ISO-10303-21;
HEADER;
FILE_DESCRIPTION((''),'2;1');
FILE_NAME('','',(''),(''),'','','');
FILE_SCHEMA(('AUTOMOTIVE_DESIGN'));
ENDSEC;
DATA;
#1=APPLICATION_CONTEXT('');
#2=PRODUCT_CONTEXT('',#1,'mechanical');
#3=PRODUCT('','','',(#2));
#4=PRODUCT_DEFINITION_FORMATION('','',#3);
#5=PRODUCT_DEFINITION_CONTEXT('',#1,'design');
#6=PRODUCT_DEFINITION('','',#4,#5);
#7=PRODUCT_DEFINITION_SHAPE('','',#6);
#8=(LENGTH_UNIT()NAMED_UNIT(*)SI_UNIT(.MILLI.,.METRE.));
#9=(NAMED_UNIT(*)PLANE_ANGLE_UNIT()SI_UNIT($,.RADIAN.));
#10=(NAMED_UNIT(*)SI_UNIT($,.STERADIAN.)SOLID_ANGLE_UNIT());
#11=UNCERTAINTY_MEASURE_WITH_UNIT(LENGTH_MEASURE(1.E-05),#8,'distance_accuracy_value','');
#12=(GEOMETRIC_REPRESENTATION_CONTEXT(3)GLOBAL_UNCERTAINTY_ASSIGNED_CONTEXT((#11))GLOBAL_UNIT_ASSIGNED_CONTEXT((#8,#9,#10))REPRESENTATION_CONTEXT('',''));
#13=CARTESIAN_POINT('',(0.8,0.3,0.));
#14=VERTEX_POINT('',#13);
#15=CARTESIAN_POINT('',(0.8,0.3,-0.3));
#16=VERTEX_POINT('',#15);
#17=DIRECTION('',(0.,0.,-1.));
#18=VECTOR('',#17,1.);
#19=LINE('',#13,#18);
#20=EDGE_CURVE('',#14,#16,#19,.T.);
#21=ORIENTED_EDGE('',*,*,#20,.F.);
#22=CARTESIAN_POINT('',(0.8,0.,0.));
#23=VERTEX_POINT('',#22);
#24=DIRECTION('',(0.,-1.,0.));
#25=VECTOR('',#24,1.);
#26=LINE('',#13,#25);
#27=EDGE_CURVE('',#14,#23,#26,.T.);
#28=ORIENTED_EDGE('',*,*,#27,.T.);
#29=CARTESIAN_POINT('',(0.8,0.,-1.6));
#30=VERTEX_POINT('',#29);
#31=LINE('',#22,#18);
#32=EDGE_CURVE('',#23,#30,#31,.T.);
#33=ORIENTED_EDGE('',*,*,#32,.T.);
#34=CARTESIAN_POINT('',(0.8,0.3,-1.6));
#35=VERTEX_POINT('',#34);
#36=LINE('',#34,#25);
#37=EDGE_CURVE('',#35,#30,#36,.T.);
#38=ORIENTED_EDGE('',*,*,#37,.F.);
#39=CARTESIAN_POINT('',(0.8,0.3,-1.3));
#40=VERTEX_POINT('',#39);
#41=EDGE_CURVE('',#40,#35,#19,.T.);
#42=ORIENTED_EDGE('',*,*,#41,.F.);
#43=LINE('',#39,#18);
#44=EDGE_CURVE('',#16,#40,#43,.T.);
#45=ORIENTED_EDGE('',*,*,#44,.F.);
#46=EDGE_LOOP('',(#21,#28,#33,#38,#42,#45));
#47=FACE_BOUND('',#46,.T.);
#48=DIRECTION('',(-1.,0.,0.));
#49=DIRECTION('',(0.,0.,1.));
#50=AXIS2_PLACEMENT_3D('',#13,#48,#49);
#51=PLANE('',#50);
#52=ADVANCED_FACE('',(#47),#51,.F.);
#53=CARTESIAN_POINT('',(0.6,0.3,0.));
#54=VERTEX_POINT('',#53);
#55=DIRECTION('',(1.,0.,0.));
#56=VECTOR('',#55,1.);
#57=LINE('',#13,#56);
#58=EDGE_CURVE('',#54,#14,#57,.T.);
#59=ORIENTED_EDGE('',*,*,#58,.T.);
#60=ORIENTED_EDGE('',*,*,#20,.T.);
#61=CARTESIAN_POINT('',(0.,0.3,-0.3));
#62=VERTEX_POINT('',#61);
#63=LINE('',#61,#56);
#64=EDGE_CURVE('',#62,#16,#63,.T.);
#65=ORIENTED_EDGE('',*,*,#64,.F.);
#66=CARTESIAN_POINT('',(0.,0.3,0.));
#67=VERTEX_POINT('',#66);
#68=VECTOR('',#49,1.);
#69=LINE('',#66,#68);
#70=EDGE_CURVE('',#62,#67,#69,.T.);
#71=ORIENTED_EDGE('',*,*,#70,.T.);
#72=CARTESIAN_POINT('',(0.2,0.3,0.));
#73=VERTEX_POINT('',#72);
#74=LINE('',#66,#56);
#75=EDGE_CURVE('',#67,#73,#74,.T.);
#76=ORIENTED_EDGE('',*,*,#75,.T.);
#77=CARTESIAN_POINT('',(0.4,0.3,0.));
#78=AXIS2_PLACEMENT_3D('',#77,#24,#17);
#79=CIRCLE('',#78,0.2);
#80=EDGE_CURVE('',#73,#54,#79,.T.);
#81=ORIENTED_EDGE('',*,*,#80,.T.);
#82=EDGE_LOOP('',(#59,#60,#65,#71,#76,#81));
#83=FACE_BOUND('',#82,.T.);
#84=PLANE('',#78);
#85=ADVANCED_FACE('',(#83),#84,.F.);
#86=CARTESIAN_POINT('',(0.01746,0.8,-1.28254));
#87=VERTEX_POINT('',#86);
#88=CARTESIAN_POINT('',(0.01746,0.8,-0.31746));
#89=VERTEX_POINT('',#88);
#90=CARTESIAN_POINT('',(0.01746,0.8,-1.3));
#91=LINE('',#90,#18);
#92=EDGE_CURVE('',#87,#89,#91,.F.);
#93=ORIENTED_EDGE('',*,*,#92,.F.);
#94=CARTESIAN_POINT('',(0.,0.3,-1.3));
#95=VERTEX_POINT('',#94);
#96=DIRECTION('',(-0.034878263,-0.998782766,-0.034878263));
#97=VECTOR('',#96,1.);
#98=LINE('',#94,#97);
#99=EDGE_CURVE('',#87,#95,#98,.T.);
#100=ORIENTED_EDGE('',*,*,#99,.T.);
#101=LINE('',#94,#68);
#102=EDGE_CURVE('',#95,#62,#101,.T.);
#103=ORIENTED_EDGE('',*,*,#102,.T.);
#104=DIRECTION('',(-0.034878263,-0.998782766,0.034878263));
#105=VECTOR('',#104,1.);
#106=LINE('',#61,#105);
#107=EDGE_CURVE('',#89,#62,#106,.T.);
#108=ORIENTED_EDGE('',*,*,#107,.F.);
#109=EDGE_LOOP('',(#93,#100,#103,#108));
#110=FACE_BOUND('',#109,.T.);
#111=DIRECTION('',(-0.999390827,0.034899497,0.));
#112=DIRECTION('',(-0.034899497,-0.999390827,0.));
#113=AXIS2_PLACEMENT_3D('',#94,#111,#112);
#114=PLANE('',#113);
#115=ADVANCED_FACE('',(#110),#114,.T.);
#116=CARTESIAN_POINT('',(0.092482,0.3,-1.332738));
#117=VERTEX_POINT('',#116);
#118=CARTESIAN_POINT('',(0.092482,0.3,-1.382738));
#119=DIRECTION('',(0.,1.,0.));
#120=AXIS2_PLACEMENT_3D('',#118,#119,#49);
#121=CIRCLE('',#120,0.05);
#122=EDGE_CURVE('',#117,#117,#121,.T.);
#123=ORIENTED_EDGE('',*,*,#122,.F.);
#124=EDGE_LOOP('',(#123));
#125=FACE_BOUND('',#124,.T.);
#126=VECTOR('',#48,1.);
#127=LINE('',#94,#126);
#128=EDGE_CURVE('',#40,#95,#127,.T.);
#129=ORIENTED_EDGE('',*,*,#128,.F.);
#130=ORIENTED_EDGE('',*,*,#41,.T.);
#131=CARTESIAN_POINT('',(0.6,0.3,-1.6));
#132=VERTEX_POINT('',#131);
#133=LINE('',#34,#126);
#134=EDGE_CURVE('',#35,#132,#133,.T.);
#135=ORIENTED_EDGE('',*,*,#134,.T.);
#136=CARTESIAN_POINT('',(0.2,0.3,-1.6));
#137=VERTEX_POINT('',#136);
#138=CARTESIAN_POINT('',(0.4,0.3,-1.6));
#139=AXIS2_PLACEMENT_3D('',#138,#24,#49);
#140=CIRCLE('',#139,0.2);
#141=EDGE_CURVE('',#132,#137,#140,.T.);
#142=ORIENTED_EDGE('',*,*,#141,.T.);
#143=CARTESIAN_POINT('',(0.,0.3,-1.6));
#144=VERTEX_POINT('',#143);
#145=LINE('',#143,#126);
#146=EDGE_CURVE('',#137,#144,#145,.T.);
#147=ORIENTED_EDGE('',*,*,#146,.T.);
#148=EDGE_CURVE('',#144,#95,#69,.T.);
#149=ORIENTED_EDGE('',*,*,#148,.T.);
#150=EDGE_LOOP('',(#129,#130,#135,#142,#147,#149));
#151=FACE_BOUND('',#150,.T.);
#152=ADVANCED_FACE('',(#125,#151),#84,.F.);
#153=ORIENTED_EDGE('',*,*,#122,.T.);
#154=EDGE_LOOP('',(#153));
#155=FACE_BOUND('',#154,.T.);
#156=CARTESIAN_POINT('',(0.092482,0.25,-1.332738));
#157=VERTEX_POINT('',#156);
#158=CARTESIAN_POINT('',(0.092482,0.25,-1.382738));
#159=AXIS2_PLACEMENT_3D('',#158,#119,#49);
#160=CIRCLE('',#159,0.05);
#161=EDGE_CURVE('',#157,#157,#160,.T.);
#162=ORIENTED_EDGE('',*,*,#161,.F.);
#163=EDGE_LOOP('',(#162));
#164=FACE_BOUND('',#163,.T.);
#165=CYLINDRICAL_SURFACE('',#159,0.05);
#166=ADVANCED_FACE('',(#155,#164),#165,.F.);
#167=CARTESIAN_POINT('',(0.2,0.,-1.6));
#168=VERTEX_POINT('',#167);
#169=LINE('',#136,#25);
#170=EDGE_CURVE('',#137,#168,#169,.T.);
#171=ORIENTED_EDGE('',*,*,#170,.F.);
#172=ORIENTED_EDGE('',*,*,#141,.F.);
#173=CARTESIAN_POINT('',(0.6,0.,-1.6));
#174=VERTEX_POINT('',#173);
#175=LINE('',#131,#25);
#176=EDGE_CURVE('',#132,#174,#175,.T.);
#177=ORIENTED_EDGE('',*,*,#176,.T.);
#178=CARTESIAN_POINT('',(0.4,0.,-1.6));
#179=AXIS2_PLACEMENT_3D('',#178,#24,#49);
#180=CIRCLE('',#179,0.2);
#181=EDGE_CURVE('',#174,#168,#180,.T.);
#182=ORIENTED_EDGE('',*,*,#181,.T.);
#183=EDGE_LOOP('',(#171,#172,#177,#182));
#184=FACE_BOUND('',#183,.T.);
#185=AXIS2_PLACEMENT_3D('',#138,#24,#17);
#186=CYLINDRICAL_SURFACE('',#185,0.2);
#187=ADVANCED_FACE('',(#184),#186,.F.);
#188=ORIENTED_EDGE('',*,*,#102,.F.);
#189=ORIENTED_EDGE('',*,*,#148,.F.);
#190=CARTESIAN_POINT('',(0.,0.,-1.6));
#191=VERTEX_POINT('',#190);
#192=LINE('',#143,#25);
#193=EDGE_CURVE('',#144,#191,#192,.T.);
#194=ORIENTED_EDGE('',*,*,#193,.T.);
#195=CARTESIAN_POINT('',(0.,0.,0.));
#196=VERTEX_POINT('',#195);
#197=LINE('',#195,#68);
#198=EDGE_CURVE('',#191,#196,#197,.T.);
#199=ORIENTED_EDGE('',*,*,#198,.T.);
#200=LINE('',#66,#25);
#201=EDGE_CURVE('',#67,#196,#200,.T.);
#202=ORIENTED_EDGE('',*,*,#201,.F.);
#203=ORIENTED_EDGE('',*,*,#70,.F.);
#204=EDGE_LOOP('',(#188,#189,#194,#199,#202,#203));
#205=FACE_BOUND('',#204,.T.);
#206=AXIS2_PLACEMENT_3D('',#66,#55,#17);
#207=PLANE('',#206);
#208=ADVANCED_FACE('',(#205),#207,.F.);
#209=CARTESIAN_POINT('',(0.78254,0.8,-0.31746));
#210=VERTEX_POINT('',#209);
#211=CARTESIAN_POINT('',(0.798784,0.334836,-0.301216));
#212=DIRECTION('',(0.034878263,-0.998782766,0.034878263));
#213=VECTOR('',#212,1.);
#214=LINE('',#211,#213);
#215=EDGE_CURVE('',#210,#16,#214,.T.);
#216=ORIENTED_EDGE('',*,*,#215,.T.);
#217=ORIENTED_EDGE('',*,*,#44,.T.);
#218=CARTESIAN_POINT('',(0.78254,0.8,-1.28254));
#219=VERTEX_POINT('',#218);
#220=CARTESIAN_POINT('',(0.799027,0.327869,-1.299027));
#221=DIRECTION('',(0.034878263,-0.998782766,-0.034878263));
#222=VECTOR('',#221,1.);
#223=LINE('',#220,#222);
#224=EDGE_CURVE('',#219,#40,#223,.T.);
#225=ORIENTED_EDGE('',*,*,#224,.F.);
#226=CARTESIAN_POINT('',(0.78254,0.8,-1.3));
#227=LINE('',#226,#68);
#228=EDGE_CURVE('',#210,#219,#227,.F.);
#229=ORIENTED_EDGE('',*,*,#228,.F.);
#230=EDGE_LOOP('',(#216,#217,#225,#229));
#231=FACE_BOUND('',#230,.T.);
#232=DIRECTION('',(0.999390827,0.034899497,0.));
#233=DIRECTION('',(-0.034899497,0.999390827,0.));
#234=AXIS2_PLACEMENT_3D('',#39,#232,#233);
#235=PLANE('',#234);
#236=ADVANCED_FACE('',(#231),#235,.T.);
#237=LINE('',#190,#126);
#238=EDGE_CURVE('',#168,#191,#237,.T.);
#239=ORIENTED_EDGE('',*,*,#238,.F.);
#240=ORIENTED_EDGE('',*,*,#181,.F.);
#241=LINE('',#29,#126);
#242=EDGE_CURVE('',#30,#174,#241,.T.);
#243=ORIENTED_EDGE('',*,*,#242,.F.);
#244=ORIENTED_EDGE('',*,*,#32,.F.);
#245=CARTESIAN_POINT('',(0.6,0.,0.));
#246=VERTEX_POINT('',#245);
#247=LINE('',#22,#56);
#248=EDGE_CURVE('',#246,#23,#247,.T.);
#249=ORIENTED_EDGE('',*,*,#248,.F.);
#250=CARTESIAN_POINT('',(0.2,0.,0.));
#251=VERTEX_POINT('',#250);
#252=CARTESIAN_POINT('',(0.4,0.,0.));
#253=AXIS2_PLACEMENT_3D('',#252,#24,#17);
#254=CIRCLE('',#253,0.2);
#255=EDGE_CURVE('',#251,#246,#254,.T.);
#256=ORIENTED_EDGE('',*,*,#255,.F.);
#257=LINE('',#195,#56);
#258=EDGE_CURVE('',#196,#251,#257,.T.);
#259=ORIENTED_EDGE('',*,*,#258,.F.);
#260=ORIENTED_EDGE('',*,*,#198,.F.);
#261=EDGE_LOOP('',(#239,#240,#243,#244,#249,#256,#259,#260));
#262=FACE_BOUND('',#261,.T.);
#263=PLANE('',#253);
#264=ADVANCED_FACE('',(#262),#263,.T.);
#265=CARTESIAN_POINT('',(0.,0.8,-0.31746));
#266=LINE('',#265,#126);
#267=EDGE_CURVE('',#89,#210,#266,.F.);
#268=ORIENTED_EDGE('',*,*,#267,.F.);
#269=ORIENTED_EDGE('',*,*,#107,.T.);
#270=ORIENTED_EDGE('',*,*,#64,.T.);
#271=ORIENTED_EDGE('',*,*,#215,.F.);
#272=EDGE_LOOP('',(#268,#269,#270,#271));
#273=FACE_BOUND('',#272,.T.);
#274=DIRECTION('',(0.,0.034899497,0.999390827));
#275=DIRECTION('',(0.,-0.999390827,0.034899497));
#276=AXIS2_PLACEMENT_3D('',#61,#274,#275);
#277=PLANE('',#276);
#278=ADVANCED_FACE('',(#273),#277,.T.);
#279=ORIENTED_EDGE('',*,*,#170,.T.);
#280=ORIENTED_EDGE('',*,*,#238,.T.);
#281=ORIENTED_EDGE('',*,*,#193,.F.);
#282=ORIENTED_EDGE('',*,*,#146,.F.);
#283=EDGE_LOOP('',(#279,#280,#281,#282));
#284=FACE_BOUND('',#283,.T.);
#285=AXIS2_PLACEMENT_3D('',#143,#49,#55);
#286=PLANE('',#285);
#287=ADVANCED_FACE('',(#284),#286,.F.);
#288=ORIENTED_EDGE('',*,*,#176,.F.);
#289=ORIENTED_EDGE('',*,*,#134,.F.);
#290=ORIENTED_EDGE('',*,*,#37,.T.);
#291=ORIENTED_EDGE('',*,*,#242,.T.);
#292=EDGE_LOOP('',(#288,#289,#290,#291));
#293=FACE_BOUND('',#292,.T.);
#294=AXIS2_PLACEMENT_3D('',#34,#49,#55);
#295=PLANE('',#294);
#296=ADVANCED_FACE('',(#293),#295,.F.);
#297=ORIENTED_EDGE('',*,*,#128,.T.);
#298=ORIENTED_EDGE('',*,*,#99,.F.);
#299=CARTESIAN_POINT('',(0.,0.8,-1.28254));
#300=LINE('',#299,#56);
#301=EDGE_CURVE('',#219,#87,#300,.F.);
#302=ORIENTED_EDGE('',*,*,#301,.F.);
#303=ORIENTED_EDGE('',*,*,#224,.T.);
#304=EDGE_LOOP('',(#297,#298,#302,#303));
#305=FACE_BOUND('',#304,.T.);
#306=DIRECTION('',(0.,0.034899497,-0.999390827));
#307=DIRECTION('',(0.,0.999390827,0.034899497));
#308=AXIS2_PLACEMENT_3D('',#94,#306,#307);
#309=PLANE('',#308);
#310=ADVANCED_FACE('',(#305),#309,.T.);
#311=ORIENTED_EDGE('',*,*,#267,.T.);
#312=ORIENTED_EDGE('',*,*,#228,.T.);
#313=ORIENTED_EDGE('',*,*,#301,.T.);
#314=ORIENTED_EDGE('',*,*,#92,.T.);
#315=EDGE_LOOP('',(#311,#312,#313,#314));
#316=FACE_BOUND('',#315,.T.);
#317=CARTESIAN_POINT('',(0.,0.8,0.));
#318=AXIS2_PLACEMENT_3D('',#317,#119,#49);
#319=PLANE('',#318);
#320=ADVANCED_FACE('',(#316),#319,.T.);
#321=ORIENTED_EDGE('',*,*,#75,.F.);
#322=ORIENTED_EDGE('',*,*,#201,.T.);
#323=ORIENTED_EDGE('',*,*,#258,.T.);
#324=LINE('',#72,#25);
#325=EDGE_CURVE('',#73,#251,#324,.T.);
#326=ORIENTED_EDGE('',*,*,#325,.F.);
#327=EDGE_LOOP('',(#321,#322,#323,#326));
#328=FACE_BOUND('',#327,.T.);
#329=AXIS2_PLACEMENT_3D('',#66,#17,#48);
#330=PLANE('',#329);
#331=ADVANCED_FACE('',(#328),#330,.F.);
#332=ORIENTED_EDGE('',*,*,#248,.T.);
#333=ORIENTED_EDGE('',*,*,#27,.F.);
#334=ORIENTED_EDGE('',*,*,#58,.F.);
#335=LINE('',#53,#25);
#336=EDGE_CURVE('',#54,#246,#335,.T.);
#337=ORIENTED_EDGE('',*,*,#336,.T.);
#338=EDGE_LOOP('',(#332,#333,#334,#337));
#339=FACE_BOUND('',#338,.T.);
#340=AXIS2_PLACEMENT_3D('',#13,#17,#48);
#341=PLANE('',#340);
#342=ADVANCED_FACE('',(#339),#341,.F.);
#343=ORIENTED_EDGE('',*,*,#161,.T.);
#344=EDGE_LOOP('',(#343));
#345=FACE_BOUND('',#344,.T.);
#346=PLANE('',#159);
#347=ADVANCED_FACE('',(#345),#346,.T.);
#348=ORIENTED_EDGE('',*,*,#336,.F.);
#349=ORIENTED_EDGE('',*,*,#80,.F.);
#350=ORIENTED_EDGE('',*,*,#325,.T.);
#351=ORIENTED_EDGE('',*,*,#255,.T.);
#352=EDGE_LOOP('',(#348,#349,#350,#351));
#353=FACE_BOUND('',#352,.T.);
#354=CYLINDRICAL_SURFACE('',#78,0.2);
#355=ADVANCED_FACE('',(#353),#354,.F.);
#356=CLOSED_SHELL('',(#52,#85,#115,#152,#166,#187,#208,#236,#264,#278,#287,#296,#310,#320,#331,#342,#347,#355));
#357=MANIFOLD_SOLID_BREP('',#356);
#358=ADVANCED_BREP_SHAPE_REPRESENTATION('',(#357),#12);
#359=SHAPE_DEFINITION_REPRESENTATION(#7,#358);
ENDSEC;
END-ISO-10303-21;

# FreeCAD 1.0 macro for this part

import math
import FreeCAD as App
import Part
import Sketcher

doc = App.newDocument("Part")
body = doc.addObject("PartDesign::Body", "Body")

sketch1 = body.newObject("Sketcher::SketchObject", "Sketch")
sketch1.AttachmentSupport = (doc.getObject("XZ_Plane"), [""])
sketch1.MapMode = "FlatFace"
sketch1.addGeometry(Part.LineSegment(App.Vector(0.8, -1.6, 0), App.Vector(0.6, -1.6, 0)), False)
sketch1.addGeometry(Part.ArcOfCircle(Part.Circle(App.Vector(0.4, -1.6, 0), App.Vector(0, 0, 1), 0.2), math.radians(0), math.radians(180)), False)
sketch1.addGeometry(Part.LineSegment(App.Vector(0.2, -1.6, 0), App.Vector(0, -1.6, 0)), False)
sketch1.addGeometry(Part.LineSegment(App.Vector(0, -1.6, 0), App.Vector(0, 0, 0)), False)
sketch1.addGeometry(Part.LineSegment(App.Vector(0, 0, 0), App.Vector(0.2, 0, 0)), False)
sketch1.addGeometry(Part.ArcOfCircle(Part.Circle(App.Vector(0.4, 0, 0), App.Vector(0, 0, 1), 0.2), math.radians(180), math.radians(360)), False)
sketch1.addGeometry(Part.LineSegment(App.Vector(0.6, 0, 0), App.Vector(0.8, 0, 0)), False)
sketch1.addGeometry(Part.LineSegment(App.Vector(0.8, 0, 0), App.Vector(0.8, -1.6, 0)), False)
sketch1.addConstraint(Sketcher.Constraint("Coincident", 0, 2, 1, 1))
sketch1.addConstraint(Sketcher.Constraint("Coincident", 1, 2, 2, 1))
sketch1.addConstraint(Sketcher.Constraint("Coincident", 2, 2, 3, 1))
sketch1.addConstraint(Sketcher.Constraint("Coincident", 3, 2, 4, 1))
sketch1.addConstraint(Sketcher.Constraint("Coincident", 4, 2, 5, 1))
sketch1.addConstraint(Sketcher.Constraint("Coincident", 5, 2, 6, 1))
sketch1.addConstraint(Sketcher.Constraint("Coincident", 6, 2, 7, 1))
sketch1.addConstraint(Sketcher.Constraint("Coincident", 7, 2, 0, 1))
sketch1.addConstraint(Sketcher.Constraint("Horizontal", 0))
sketch1.addConstraint(Sketcher.Constraint("Horizontal", 2))
sketch1.addConstraint(Sketcher.Constraint("Vertical", 3))
sketch1.addConstraint(Sketcher.Constraint("Horizontal", 4))
sketch1.addConstraint(Sketcher.Constraint("Horizontal", 6))
sketch1.addConstraint(Sketcher.Constraint("Vertical", 7))
sketch1.addConstraint(Sketcher.Constraint("Coincident", 3, 2, -1, 1))
sketch1.addConstraint(Sketcher.Constraint("Equal", 1, 5))
sketch1.addConstraint(Sketcher.Constraint("PointOnObject", 5, 3, -1))
sketch1.addConstraint(Sketcher.Constraint("PointOnObject", 5, 2, -1))
sketch1.addConstraint(Sketcher.Constraint("Horizontal", 1, 3, 0, 2))
sketch1.addConstraint(Sketcher.Constraint("Horizontal", 0, 2, 1, 2))
sketch1.addConstraint(Sketcher.Constraint("Vertical", 1, 3, 5, 3))
sketch1.addConstraint(Sketcher.Constraint("Equal", 0, 2))
sketch1.addConstraint(Sketcher.Constraint("Radius", 1, 0.2))
sketch1.addConstraint(Sketcher.Constraint("DistanceX", 0, 2, 0, 1, 0.2))
sketch1.addConstraint(Sketcher.Constraint("DistanceY", 3, 1, 3, 2, 1.6))
pad1 = body.newObject("PartDesign::Pad", "Pad")
pad1.Profile = sketch1
pad1.Length = 0.3
pad1.Reversed = True

sketch2 = body.newObject("Sketcher::SketchObject", "Sketch001")
sketch2.AttachmentSupport = (doc.getObject("XZ_Plane"), [""])
sketch2.MapMode = "FlatFace"
sketch2.AttachmentOffset = App.Placement(App.Vector(0, 0, -0.3), App.Rotation())
sketch2.addGeometry(Part.Circle(App.Vector(0.092482, -1.382738, 0), App.Vector(0, 0, 1), 0.05), False)
sketch2.addConstraint(Sketcher.Constraint("Diameter", 0, 0.1))
sketch2.addConstraint(Sketcher.Constraint("DistanceX", -1, 1, 0, 3, 0.092482))
sketch2.addConstraint(Sketcher.Constraint("DistanceY", 0, 3, -1, 1, 1.382738))
pocket1 = body.newObject("PartDesign::Pocket", "Pocket")
pocket1.Profile = sketch2
pocket1.Length = 0.05
pocket1.Reversed = True

sketch3 = body.newObject("Sketcher::SketchObject", "Sketch002")
sketch3.AttachmentSupport = (doc.getObject("XZ_Plane"), [""])
sketch3.MapMode = "FlatFace"
sketch3.AttachmentOffset = App.Placement(App.Vector(0, 0, -0.3), App.Rotation())
sketch3.addGeometry(Part.LineSegment(App.Vector(0, -1.3, 0), App.Vector(0, -0.3, 0)), False)
sketch3.addGeometry(Part.LineSegment(App.Vector(0, -0.3, 0), App.Vector(0.8, -0.3, 0)), False)
sketch3.addGeometry(Part.LineSegment(App.Vector(0.8, -0.3, 0), App.Vector(0.8, -1.3, 0)), False)
sketch3.addGeometry(Part.LineSegment(App.Vector(0.8, -1.3, 0), App.Vector(0, -1.3, 0)), False)
sketch3.addConstraint(Sketcher.Constraint("Coincident", 0, 2, 1, 1))
sketch3.addConstraint(Sketcher.Constraint("Coincident", 1, 2, 2, 1))
sketch3.addConstraint(Sketcher.Constraint("Coincident", 2, 2, 3, 1))
sketch3.addConstraint(Sketcher.Constraint("Coincident", 3, 2, 0, 1))
sketch3.addConstraint(Sketcher.Constraint("Vertical", 0))
sketch3.addConstraint(Sketcher.Constraint("Horizontal", 1))
sketch3.addConstraint(Sketcher.Constraint("Vertical", 2))
sketch3.addConstraint(Sketcher.Constraint("Horizontal", 3))
sketch3.addConstraint(Sketcher.Constraint("PointOnObject", 0, 2, -2))
sketch3.addConstraint(Sketcher.Constraint("DistanceY", 0, 1, 0, 2, 1.0))
sketch3.addConstraint(Sketcher.Constraint("DistanceX", 1, 1, 1, 2, 0.8))
sketch3.addConstraint(Sketcher.Constraint("DistanceY", 0, 2, -1, 1, 0.3))
pad2 = body.newObject("PartDesign::Pad", "Pad001")
pad2.Profile = sketch3
pad2.Length = 0.5
pad2.Reversed = True
pad2.TaperAngle = -2

doc.recompute()
